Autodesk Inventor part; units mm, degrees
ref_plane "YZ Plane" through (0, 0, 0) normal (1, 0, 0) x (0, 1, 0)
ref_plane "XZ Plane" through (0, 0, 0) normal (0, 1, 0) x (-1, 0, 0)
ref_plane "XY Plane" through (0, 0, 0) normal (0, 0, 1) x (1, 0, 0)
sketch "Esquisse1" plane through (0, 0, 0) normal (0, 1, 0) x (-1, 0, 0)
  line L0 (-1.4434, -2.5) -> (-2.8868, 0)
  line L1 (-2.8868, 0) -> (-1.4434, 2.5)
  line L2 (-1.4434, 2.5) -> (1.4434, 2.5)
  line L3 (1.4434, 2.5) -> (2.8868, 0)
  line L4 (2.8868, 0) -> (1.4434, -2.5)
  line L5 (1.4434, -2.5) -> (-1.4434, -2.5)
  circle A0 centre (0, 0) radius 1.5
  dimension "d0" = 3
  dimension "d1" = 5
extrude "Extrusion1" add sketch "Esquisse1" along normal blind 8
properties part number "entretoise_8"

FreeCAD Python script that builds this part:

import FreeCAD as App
import Part
import Sketcher
Q = App.Units.Quantity


def add_polygon(sketch, points):
    """Adds a closed chain of lines whose ends are joined by coincident constraints."""
    first, n = sketch.GeometryCount, len(points)
    for a, b in zip(points, points[1:] + points[:1]):
        sketch.addGeometry(Part.LineSegment(App.Vector(*a, 0), App.Vector(*b, 0)), False)
    for i in range(n):
        sketch.addConstraint(Sketcher.Constraint("Coincident", first + i, 2, first + (i + 1) % n, 1))

doc = App.newDocument("Part")
body = doc.addObject("PartDesign::Body", "Body")

# Sketch on XZ plane
sketch1 = body.newObject("Sketcher::SketchObject", "Sketch")
sketch1.AttachmentSupport = (doc.getObject("XZ_Plane"), [""])
sketch1.MapMode = "FlatFace"
add_polygon(sketch1, [(2.9, 0), (1.4, -2.5), (-1.4, -2.5), (-2.9, 0), (-1.4, 2.5), (1.4, 2.5)])  # lines 0-5
sketch1.addGeometry(Part.Circle(App.Vector(0, 0, 0), App.Vector(0, 0, 1), 1.5), False)  # 6
sketch1.addConstraint([
    Sketcher.Constraint("Horizontal", 1),
    Sketcher.Constraint("Horizontal", 4),
    Sketcher.Constraint("Coincident", 6, 3, -1, 1),
    Sketcher.Constraint("Symmetric", 0, 2, 3, 2, -1, 1),
    Sketcher.Constraint("Symmetric", 2, 2, 5, 2, -1, 1),
    Sketcher.Constraint("PointOnObject", 2, 2, -1),
    Sketcher.Constraint("Parallel", 2, 5),
    Sketcher.Constraint("Vertical", 1, 2, 3, 2),
    Sketcher.Constraint("Diameter", 6, Q("3 mm")),
    Sketcher.Constraint("DistanceY", 1, 2, 3, 2, Q("5 mm")),
    Sketcher.Constraint("Angle", 0, Q("-120.0004 deg")),
    Sketcher.Constraint("DistanceX", 1, 2, 1, 1, Q("2.8868 mm")),
])
pad1 = body.newObject("PartDesign::Pad", "Pad")
pad1.Profile = sketch1
pad1.Length = 8
pad1.Reversed = True

doc.recompute()
